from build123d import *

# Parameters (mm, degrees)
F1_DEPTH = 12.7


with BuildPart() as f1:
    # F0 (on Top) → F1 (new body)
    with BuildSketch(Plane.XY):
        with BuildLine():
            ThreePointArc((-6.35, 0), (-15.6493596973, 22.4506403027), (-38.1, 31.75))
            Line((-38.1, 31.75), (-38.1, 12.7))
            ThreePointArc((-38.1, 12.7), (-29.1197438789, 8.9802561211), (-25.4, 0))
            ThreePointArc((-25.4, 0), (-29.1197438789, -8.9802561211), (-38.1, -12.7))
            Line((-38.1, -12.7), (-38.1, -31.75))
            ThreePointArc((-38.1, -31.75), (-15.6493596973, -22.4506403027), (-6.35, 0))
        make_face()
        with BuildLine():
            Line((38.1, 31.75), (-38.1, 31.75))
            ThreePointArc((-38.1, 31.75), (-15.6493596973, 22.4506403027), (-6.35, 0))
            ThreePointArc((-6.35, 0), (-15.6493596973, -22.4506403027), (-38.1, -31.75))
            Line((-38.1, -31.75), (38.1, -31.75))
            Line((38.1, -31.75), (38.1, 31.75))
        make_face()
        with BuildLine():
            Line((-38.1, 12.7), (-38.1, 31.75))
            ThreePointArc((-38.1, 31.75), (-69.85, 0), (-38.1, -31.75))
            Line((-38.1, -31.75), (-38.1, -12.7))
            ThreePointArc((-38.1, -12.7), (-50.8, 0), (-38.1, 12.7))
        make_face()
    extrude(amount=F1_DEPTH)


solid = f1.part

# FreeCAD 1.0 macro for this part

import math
import FreeCAD as App
import Part
import Sketcher

V = App.Vector
Q = App.Units.Quantity

doc = App.newDocument("Part")
params = doc.addObject("Spreadsheet::Sheet", "Params")
for row, (alias, value) in enumerate([
    ("sketch1_radius", "0.5 in"),
    ("sketch1_width", "3 in"),
    ("sketch1_radius2", "1.25 in"),
    ("pad1_length", "0.5 in"),
], start=1):
    params.set(f"A{row}", alias)
    params.set(f"B{row}", "=" + value)
    params.setAlias(f"B{row}", alias)

body = doc.addObject("PartDesign::Body", "Body")

# Sketch on XY plane
sketch1 = body.newObject("Sketcher::SketchObject", "Sketch")
sketch1.AttachmentSupport = (doc.getObject("XY_Plane"), [""])
sketch1.MapMode = "FlatFace"
sketch1.addGeometry([
    Part.LineSegment(V(-38.1, -31.75, 0), V(38.1, -31.75, 0)),  # 0
    Part.LineSegment(V(38.1, -31.75, 0), V(38.1, 31.75, 0)),  # 1
    Part.LineSegment(V(38.1, 31.75, 0), V(-38.1, 31.75, 0)),  # 2
    Part.ArcOfCircle(Part.Circle(V(-38.1, 0, 0), V(0, 0, 1), 31.75), math.radians(90), math.radians(270)),  # 3
    Part.ArcOfCircle(Part.Circle(V(-38.1, 0, 0), V(0, 0, 1), 12.7), math.radians(0), math.radians(90)),  # 4
    Part.ArcOfCircle(Part.Circle(V(-38.1, 0, 0), V(0, 0, 1), 12.7), math.radians(-90), math.radians(0)),  # 5
    Part.ArcOfCircle(Part.Circle(V(-38.1, 0, 0), V(0, 0, 1), 12.7), math.radians(90), math.radians(270)),  # 6
], False)
sketch1.addConstraint([
    Sketcher.Constraint("Coincident", 0, 2, 1, 1),
    Sketcher.Constraint("Coincident", 1, 2, 2, 1),
    Sketcher.Constraint("Tangent", 2, 2, 3, 1),
    Sketcher.Constraint("Tangent", 3, 2, 0, 1),
    Sketcher.Constraint("Tangent", 4, 1, 5, 2),
    Sketcher.Constraint("Tangent", 5, 1, 6, 2),
    Sketcher.Constraint("Tangent", 6, 1, 4, 2),
    Sketcher.Constraint("Horizontal", 0),
    Sketcher.Constraint("Vertical", 1),
    Sketcher.Constraint("Horizontal", 2),
    Sketcher.Constraint("Coincident", 4, 3, 3, 3),
    Sketcher.Constraint("Symmetric", 0, 2, 2, 2, -1, 1),
    Sketcher.Constraint("PointOnObject", 4, 1, -1),
    Sketcher.Constraint("Vertical", 3, 2, 5, 1),
    Sketcher.Constraint("Vertical", 5, 1, 6, 1),
    Sketcher.Constraint("Radius", 4, Q("0.5 in")),
    Sketcher.Constraint("DistanceX", 0, 1, 0, 2, Q("3 in")),
    Sketcher.Constraint("Radius", 3, Q("1.25 in")),
])
sketch1.setExpression("Constraints[15]", "Params.sketch1_radius")
sketch1.setExpression("Constraints[16]", "Params.sketch1_width")
sketch1.setExpression("Constraints[17]", "Params.sketch1_radius2")
pad1 = body.newObject("PartDesign::Pad", "Pad")
pad1.Profile = sketch1
pad1.setExpression("Length", "Params.pad1_length")

doc.recompute()
